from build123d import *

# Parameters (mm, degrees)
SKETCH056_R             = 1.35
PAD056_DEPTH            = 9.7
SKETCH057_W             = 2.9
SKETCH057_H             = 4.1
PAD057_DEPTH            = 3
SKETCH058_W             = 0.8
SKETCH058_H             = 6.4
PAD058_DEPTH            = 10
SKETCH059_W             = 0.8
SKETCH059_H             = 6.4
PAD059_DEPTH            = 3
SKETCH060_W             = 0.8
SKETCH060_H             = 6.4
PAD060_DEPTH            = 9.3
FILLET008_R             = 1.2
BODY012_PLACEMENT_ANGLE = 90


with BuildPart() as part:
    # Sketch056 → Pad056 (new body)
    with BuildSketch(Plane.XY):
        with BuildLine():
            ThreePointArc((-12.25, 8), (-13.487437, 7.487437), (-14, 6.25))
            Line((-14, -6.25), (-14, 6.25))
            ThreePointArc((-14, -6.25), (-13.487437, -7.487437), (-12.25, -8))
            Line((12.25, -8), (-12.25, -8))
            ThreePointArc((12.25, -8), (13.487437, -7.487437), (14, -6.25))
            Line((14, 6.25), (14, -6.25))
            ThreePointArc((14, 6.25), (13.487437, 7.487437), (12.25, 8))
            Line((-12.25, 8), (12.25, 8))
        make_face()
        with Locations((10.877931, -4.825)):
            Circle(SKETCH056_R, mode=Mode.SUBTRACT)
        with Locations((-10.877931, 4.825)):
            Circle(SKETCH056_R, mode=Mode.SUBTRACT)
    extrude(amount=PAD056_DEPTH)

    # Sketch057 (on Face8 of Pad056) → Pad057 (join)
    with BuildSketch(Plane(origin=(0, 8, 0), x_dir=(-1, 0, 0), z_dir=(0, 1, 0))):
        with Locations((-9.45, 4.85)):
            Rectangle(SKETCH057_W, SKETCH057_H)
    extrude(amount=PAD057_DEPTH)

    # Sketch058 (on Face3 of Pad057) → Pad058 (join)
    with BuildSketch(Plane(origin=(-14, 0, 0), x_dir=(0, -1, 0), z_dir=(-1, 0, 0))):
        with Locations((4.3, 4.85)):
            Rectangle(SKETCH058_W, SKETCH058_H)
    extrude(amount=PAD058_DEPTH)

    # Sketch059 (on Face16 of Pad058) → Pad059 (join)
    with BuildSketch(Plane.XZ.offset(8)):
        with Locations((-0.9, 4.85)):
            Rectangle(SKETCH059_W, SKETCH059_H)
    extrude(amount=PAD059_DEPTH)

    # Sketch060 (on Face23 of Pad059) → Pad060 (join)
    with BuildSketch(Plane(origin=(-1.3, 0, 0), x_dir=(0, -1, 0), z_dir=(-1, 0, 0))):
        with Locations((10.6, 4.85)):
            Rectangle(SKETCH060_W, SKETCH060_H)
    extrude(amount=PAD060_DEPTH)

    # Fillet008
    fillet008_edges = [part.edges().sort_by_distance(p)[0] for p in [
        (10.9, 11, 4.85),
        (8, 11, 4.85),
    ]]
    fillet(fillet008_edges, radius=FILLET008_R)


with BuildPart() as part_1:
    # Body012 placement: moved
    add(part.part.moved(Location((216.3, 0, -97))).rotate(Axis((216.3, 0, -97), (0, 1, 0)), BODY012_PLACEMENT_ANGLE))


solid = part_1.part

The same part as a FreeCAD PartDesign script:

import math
import FreeCAD as App
import Part
import Sketcher


def edges_at(feature, points):
    """Names of the edges that pass closest to the given points."""
    edges = feature.Shape.Edges
    near = lambda p: min(range(len(edges)), key=lambda i: edges[i].distToShape(Part.Vertex(*p))[0])
    return sorted({f"Edge{near(p) + 1}" for p in points})


def add_polygon(sketch, points):
    """Adds a closed chain of lines whose ends are joined by coincident constraints."""
    first, n = sketch.GeometryCount, len(points)
    for a, b in zip(points, points[1:] + points[:1]):
        sketch.addGeometry(Part.LineSegment(App.Vector(*a, 0), App.Vector(*b, 0)), False)
    for i in range(n):
        sketch.addConstraint(Sketcher.Constraint("Coincident", first + i, 2, first + (i + 1) % n, 1))

doc = App.newDocument("Part")
body = doc.addObject("PartDesign::Body", "Body")

sketch1 = body.newObject("Sketcher::SketchObject", "Sketch")
sketch1.AttachmentSupport = (doc.getObject("XY_Plane"), [""])
sketch1.MapMode = "FlatFace"
sketch1.addGeometry([
    Part.ArcOfCircle(Part.Circle(App.Vector(-12.3, 6.3, 0), App.Vector(0, 0, 1), 1.7), math.radians(90), math.radians(180)),
    Part.LineSegment(App.Vector(-14, 6.2, 0), App.Vector(-14, -6.2, 0)),
    Part.ArcOfCircle(Part.Circle(App.Vector(-12.3, -6.3, 0), App.Vector(0, 0, 1), 1.7), math.radians(180), math.radians(270)),
    Part.LineSegment(App.Vector(-12.2, -8, 0), App.Vector(12.2, -8, 0)),
    Part.ArcOfCircle(Part.Circle(App.Vector(12.3, -6.3, 0), App.Vector(0, 0, 1), 1.7), math.radians(-90), math.radians(0)),
    Part.LineSegment(App.Vector(14, -6.2, 0), App.Vector(14, 6.2, 0)),
    Part.ArcOfCircle(Part.Circle(App.Vector(12.3, 6.3, 0), App.Vector(0, 0, 1), 1.7), math.radians(0), math.radians(90)),
    Part.LineSegment(App.Vector(12.2, 8, 0), App.Vector(-12.2, 8, 0)),
    Part.Circle(App.Vector(10.9, -4.8, 0), App.Vector(0, 0, 1), 1.4),
    Part.Circle(App.Vector(-10.9, 4.8, 0), App.Vector(0, 0, 1), 1.4),
], False)
sketch1.addConstraint([
    Sketcher.Constraint("Tangent", 0, 2, 1, 1),
    Sketcher.Constraint("Tangent", 1, 2, 2, 1),
    Sketcher.Constraint("Tangent", 2, 2, 3, 1),
    Sketcher.Constraint("Tangent", 3, 2, 4, 1),
    Sketcher.Constraint("Tangent", 4, 2, 5, 1),
    Sketcher.Constraint("Tangent", 5, 2, 6, 1),
    Sketcher.Constraint("Tangent", 6, 2, 7, 1),
    Sketcher.Constraint("Tangent", 7, 2, 0, 1),
    Sketcher.Constraint("Vertical", 1),
    Sketcher.Constraint("Horizontal", 3),
    Sketcher.Constraint("Vertical", 5),
    Sketcher.Constraint("Horizontal", 7),
    Sketcher.Constraint("Equal", 0, 2),
    Sketcher.Constraint("Equal", 2, 4),
    Sketcher.Constraint("Equal", 4, 6),
    Sketcher.Constraint("Equal", 8, 9),
    Sketcher.Constraint("Symmetric", 0, 3, 4, 3, -1, 1),
    Sketcher.Constraint("Symmetric", 8, 3, 9, 3, -1, 1),
    Sketcher.Constraint("Diameter", 8, 2.7),
    Sketcher.Constraint("Radius", 0, 1.75),
    Sketcher.Constraint("DistanceX", 3, 1, 3, 2, 24.5),
    Sketcher.Constraint("DistanceY", 1, 2, 1, 1, 12.5),
    Sketcher.Constraint("DistanceY", 8, 3, 9, 3, 9.65),
    Sketcher.Constraint("DistanceX", -1, 1, 8, 3, 10.877931),
])
pad1 = body.newObject("PartDesign::Pad", "Pad")
pad1.Profile = sketch1
pad1.Length = 9.7

sketch2 = body.newObject("Sketcher::SketchObject", "Sketch001")
sketch2.AttachmentSupport = (doc.getObject("XZ_Plane"), [""])
sketch2.MapMode = "FlatFace"
sketch2.AttachmentOffset = App.Placement(App.Vector(0, 0, -8), App.Rotation())
add_polygon(sketch2, [(10.9, 6.9), (10.9, 2.8), (8, 2.8), (8, 6.9)])
sketch2.addConstraint([
    Sketcher.Constraint("Vertical", 0),
    Sketcher.Constraint("Horizontal", 1),
    Sketcher.Constraint("Vertical", 2),
    Sketcher.Constraint("Horizontal", 3),
    Sketcher.Constraint("DistanceX", 1, 2, 1, 1, 2.9),
    Sketcher.Constraint("DistanceY", 0, 2, 0, 1, 4.1),
    Sketcher.Constraint("DistanceX", -1, 1, 1, 2, 8.0),
    Sketcher.Constraint("DistanceY", -1, 1, 0, 2, 2.8),
])
pad2 = body.newObject("PartDesign::Pad", "Pad001")
pad2.Profile = sketch2
pad2.Length = 3
pad2.Reversed = True

sketch3 = body.newObject("Sketcher::SketchObject", "Sketch002")
sketch3.AttachmentSupport = (doc.getObject("YZ_Plane"), [""])
sketch3.MapMode = "FlatFace"
sketch3.AttachmentOffset = App.Placement(App.Vector(0, 0, -14), App.Rotation())
add_polygon(sketch3, [(-3.9, 8.1), (-3.9, 1.6), (-4.7, 1.6), (-4.7, 8.1)])
sketch3.addConstraint([
    Sketcher.Constraint("Vertical", 0),
    Sketcher.Constraint("Horizontal", 1),
    Sketcher.Constraint("Vertical", 2),
    Sketcher.Constraint("Horizontal", 3),
    Sketcher.Constraint("DistanceX", 1, 2, 1, 1, 0.8),
    Sketcher.Constraint("DistanceY", 0, 2, 0, 1, 6.4),
    Sketcher.Constraint("DistanceX", 0, 2, -1, 1, 3.9),
    Sketcher.Constraint("DistanceY", -1, 1, 0, 2, 1.65),
])
pad3 = body.newObject("PartDesign::Pad", "Pad002")
pad3.Profile = sketch3
pad3.Length = 10
pad3.Reversed = True

sketch4 = body.newObject("Sketcher::SketchObject", "Sketch003")
sketch4.AttachmentSupport = (doc.getObject("XZ_Plane"), [""])
sketch4.MapMode = "FlatFace"
sketch4.AttachmentOffset = App.Placement(App.Vector(0, 0, 8), App.Rotation())
add_polygon(sketch4, [(-1.3, 8.1), (-1.3, 1.6), (-0.5, 1.6), (-0.5, 8.1)])
sketch4.addConstraint([
    Sketcher.Constraint("Vertical", 0),
    Sketcher.Constraint("Horizontal", 1),
    Sketcher.Constraint("Vertical", 2),
    Sketcher.Constraint("Horizontal", 3),
    Sketcher.Constraint("DistanceX", 1, 1, 1, 2, 0.8),
    Sketcher.Constraint("DistanceY", 0, 2, 0, 1, 6.4),
    Sketcher.Constraint("DistanceX", 0, 2, -1, 1, 1.3),
    Sketcher.Constraint("DistanceY", -1, 1, 0, 2, 1.65),
])
pad4 = body.newObject("PartDesign::Pad", "Pad003")
pad4.Profile = sketch4
pad4.Length = 3

sketch5 = body.newObject("Sketcher::SketchObject", "Sketch004")
sketch5.AttachmentSupport = (doc.getObject("YZ_Plane"), [""])
sketch5.MapMode = "FlatFace"
sketch5.AttachmentOffset = App.Placement(App.Vector(0, 0, -1.3), App.Rotation())
add_polygon(sketch5, [(-10.2, 8.1), (-10.2, 1.6), (-11, 1.6), (-11, 8.1)])
sketch5.addConstraint([
    Sketcher.Constraint("Vertical", 0),
    Sketcher.Constraint("Horizontal", 1),
    Sketcher.Constraint("Vertical", 2),
    Sketcher.Constraint("Horizontal", 3),
    Sketcher.Constraint("DistanceX", 1, 2, 1, 1, 0.8),
    Sketcher.Constraint("DistanceY", 0, 2, 0, 1, 6.4),
    Sketcher.Constraint("DistanceX", 1, 2, -1, 1, 11.0),
    Sketcher.Constraint("DistanceY", -1, 1, 0, 2, 1.65),
])
pad5 = body.newObject("PartDesign::Pad", "Pad004")
pad5.Profile = sketch5
pad5.Length = 9.3
pad5.Reversed = True
doc.recompute()

fillet = body.newObject("PartDesign::Fillet", "Fillet")
fillet.Base = (pad5, edges_at(pad5, [(10.9, 11, 4.85), (8, 11, 4.85)]))
fillet.Radius = 1.2
body2 = doc.addObject("PartDesign::Body", "Body001")
doc.recompute()

body.Placement = App.Placement(App.Vector(216.3, 0, -97), App.Rotation(App.Vector(0, 1, 0), 90))
boolean = body2.newObject("PartDesign::Boolean", "Boolean")
boolean.Type = "Fuse"
boolean.addObjects([body])

doc.recompute()
